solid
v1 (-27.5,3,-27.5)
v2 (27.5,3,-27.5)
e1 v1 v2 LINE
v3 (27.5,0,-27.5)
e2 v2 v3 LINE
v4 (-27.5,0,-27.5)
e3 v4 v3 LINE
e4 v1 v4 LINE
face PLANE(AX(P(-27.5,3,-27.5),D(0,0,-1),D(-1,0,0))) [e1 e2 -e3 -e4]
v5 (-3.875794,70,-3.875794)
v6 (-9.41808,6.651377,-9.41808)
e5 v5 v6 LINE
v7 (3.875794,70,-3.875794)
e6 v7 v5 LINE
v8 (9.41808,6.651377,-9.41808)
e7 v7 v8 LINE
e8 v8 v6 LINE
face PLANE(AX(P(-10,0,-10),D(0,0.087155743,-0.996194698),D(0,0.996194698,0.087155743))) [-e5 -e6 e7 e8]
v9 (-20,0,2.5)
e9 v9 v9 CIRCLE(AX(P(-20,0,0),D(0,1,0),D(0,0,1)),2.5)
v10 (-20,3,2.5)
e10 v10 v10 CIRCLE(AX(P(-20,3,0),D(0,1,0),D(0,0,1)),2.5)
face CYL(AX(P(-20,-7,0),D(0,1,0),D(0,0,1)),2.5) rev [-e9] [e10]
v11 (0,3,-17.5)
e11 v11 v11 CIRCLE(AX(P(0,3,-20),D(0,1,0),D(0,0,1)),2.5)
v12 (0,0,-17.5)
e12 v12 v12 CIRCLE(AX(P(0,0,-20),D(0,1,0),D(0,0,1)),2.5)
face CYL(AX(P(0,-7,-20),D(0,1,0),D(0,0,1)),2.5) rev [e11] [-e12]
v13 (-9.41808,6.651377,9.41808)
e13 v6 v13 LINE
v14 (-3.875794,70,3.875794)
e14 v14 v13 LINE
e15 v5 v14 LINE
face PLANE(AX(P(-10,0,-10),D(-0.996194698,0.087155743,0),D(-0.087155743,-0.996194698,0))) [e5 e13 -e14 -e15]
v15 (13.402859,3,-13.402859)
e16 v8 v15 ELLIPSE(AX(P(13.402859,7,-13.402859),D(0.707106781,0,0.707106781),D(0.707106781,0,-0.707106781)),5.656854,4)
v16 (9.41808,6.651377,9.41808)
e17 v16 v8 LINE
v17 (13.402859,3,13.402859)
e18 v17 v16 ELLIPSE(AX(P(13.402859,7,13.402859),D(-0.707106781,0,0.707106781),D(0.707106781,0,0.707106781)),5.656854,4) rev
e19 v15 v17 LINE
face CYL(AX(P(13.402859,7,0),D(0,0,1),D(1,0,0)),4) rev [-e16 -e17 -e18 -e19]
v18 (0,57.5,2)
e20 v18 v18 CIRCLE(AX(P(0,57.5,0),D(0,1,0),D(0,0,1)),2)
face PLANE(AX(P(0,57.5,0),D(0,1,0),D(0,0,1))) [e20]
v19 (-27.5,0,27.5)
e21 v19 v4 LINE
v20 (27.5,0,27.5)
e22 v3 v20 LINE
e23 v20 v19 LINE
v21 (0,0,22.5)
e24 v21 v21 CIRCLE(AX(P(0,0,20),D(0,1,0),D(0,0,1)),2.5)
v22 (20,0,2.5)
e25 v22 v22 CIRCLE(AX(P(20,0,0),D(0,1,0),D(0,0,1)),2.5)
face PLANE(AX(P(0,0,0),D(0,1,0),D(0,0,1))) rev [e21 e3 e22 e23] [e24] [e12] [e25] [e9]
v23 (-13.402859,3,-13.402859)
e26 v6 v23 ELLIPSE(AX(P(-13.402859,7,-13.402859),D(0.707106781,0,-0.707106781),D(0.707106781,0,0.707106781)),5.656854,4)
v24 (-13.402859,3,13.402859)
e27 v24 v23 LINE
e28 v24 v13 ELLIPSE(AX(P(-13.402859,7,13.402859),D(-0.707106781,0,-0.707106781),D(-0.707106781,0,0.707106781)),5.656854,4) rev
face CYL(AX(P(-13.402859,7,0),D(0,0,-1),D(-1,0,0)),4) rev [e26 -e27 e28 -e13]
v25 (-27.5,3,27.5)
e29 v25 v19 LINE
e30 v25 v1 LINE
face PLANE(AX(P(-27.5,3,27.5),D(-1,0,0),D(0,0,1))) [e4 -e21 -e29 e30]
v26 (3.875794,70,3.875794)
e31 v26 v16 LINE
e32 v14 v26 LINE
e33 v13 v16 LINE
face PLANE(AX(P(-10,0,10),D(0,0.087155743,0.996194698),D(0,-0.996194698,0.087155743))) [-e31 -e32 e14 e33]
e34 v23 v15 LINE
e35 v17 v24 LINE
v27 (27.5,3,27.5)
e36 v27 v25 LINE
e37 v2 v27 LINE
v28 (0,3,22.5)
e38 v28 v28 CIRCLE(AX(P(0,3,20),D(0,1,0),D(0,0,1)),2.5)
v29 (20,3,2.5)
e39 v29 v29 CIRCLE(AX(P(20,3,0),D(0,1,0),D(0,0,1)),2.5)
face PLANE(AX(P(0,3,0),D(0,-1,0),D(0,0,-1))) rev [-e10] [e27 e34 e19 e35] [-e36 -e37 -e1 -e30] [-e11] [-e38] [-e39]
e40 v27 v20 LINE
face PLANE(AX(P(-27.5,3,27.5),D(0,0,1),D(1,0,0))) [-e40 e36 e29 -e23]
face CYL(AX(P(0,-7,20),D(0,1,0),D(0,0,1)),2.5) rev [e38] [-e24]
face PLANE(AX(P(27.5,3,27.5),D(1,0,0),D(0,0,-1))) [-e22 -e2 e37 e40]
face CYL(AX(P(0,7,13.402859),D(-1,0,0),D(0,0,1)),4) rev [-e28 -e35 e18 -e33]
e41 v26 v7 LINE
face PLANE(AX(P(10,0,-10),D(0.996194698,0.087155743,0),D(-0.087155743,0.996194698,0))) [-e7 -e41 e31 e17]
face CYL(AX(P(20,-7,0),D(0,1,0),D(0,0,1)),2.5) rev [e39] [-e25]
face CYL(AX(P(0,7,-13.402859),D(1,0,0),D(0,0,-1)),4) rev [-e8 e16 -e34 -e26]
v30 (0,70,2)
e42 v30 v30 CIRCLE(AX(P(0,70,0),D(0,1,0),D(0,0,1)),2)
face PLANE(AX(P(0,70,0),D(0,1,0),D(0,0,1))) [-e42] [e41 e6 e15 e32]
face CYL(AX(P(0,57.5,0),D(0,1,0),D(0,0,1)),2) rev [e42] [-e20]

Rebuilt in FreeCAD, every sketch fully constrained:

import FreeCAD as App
import Part
import Sketcher


def edges_at(feature, points):
    """Names of the edges that pass closest to the given points."""
    edges = feature.Shape.Edges
    near = lambda p: min(range(len(edges)), key=lambda i: edges[i].distToShape(Part.Vertex(*p))[0])
    return sorted({f"Edge{near(p) + 1}" for p in points})


def add_polygon(sketch, points):
    """Adds a closed chain of lines whose ends are joined by coincident constraints."""
    first, n = sketch.GeometryCount, len(points)
    for a, b in zip(points, points[1:] + points[:1]):
        sketch.addGeometry(Part.LineSegment(App.Vector(*a, 0), App.Vector(*b, 0)), False)
    for i in range(n):
        sketch.addConstraint(Sketcher.Constraint("Coincident", first + i, 2, first + (i + 1) % n, 1))

doc = App.newDocument("Part")
body = doc.addObject("PartDesign::Body", "Body")

# Sketch on XZ plane
sketch1 = body.newObject("Sketcher::SketchObject", "Sketch")
sketch1.AttachmentSupport = (doc.getObject("XZ_Plane"), [""])
sketch1.MapMode = "FlatFace"
add_polygon(sketch1, [(-10, -10), (-10, 10), (10, 10), (10, -10)])  # lines 0-3
sketch1.addConstraint([
    Sketcher.Constraint("Vertical", 0),
    Sketcher.Constraint("Horizontal", 1),
    Sketcher.Constraint("Vertical", 2),
    Sketcher.Constraint("Horizontal", 3),
    Sketcher.Constraint("Symmetric", 0, 2, 2, 2, -1, 1),
    Sketcher.Constraint("Equal", 3, 0),
    Sketcher.Constraint("DistanceX", 1, 1, 1, 2, 20.0),
])
pad1 = body.newObject("PartDesign::Pad", "Pad")
pad1.Profile = sketch1
pad1.Length = 70
pad1.Reversed = True
pad1.TaperAngle = -5

# Sketch on XZ plane
sketch2 = body.newObject("Sketcher::SketchObject", "Sketch001")
sketch2.AttachmentSupport = (doc.getObject("XZ_Plane"), [""])
sketch2.MapMode = "FlatFace"
sketch2.AttachmentOffset = App.Placement(App.Vector(0, 0, -70), App.Rotation())
sketch2.addGeometry(Part.Circle(App.Vector(0, 0, 0), App.Vector(0, 0, 1), 2), False)
sketch2.addConstraint([
    Sketcher.Constraint("Coincident", 0, 3, -1, 1),
    Sketcher.Constraint("Diameter", 0, 4.0),
])
pocket1 = body.newObject("PartDesign::Pocket", "Pocket")
pocket1.Profile = sketch2
pocket1.Length = 12.5
pocket1.Reversed = True

# Sketch on XZ plane
sketch3 = body.newObject("Sketcher::SketchObject", "Sketch002")
sketch3.AttachmentSupport = (doc.getObject("XZ_Plane"), [""])
sketch3.MapMode = "FlatFace"
add_polygon(sketch3, [(-28, 28), (-28, -28), (28, -28), (28, 28)])  # lines 0-3
sketch3.addConstraint([
    Sketcher.Constraint("Vertical", 0),
    Sketcher.Constraint("Horizontal", 1),
    Sketcher.Constraint("Vertical", 2),
    Sketcher.Constraint("Horizontal", 3),
    Sketcher.Constraint("Symmetric", 0, 2, 2, 2, -1, 1),
    Sketcher.Constraint("Equal", 3, 0),
    Sketcher.Constraint("DistanceX", 1, 1, 1, 2, 55.0),
])
pad2 = body.newObject("PartDesign::Pad", "Pad001")
pad2.Profile = sketch3
pad2.Length = 3
pad2.Reversed = True
doc.recompute()

fillet = body.newObject("PartDesign::Fillet", "Fillet")
fillet.Base = (pad2, edges_at(pad2, [
    (0, 3, 9.738),
    (0, 3, -9.738),
    (9.738, 3, 0),
    (-9.738, 3, 0),
]))
fillet.Radius = 4

# Sketch on XZ plane
sketch4 = body.newObject("Sketcher::SketchObject", "Sketch003")
sketch4.AttachmentSupport = (doc.getObject("XZ_Plane"), [""])
sketch4.MapMode = "FlatFace"
sketch4.AttachmentOffset = App.Placement(App.Vector(0, 0, -3), App.Rotation())
sketch4.addGeometry([
    Part.Circle(App.Vector(-20, 0, 0), App.Vector(0, 0, 1), 2.5),
    Part.Circle(App.Vector(0, -20, 0), App.Vector(0, 0, 1), 2.5),
    Part.Circle(App.Vector(20, 0, 0), App.Vector(0, 0, 1), 2.5),
    Part.Circle(App.Vector(0, 20, 0), App.Vector(0, 0, 1), 2.5),
], False)
sketch4.addConstraint([
    Sketcher.Constraint("Equal", 0, 1),
    Sketcher.Constraint("Equal", 1, 2),
    Sketcher.Constraint("Equal", 2, 3),
    Sketcher.Constraint("Symmetric", 0, 3, 2, 3, -1, 1),
    Sketcher.Constraint("Symmetric", 1, 3, 3, 3, -1, 1),
    Sketcher.Constraint("PointOnObject", 0, 3, -1),
    Sketcher.Constraint("PointOnObject", 1, 3, -2),
    Sketcher.Constraint("Diameter", 0, 5.0),
    Sketcher.Constraint("DistanceX", 0, 3, -1, 1, 20.0),
    Sketcher.Constraint("DistanceY", 1, 3, -1, 1, 20.0),
])
pocket2 = body.newObject("PartDesign::Pocket", "Pocket001")
pocket2.Profile = sketch4
pocket2.Length = 10
pocket2.Reversed = True

doc.recompute()
